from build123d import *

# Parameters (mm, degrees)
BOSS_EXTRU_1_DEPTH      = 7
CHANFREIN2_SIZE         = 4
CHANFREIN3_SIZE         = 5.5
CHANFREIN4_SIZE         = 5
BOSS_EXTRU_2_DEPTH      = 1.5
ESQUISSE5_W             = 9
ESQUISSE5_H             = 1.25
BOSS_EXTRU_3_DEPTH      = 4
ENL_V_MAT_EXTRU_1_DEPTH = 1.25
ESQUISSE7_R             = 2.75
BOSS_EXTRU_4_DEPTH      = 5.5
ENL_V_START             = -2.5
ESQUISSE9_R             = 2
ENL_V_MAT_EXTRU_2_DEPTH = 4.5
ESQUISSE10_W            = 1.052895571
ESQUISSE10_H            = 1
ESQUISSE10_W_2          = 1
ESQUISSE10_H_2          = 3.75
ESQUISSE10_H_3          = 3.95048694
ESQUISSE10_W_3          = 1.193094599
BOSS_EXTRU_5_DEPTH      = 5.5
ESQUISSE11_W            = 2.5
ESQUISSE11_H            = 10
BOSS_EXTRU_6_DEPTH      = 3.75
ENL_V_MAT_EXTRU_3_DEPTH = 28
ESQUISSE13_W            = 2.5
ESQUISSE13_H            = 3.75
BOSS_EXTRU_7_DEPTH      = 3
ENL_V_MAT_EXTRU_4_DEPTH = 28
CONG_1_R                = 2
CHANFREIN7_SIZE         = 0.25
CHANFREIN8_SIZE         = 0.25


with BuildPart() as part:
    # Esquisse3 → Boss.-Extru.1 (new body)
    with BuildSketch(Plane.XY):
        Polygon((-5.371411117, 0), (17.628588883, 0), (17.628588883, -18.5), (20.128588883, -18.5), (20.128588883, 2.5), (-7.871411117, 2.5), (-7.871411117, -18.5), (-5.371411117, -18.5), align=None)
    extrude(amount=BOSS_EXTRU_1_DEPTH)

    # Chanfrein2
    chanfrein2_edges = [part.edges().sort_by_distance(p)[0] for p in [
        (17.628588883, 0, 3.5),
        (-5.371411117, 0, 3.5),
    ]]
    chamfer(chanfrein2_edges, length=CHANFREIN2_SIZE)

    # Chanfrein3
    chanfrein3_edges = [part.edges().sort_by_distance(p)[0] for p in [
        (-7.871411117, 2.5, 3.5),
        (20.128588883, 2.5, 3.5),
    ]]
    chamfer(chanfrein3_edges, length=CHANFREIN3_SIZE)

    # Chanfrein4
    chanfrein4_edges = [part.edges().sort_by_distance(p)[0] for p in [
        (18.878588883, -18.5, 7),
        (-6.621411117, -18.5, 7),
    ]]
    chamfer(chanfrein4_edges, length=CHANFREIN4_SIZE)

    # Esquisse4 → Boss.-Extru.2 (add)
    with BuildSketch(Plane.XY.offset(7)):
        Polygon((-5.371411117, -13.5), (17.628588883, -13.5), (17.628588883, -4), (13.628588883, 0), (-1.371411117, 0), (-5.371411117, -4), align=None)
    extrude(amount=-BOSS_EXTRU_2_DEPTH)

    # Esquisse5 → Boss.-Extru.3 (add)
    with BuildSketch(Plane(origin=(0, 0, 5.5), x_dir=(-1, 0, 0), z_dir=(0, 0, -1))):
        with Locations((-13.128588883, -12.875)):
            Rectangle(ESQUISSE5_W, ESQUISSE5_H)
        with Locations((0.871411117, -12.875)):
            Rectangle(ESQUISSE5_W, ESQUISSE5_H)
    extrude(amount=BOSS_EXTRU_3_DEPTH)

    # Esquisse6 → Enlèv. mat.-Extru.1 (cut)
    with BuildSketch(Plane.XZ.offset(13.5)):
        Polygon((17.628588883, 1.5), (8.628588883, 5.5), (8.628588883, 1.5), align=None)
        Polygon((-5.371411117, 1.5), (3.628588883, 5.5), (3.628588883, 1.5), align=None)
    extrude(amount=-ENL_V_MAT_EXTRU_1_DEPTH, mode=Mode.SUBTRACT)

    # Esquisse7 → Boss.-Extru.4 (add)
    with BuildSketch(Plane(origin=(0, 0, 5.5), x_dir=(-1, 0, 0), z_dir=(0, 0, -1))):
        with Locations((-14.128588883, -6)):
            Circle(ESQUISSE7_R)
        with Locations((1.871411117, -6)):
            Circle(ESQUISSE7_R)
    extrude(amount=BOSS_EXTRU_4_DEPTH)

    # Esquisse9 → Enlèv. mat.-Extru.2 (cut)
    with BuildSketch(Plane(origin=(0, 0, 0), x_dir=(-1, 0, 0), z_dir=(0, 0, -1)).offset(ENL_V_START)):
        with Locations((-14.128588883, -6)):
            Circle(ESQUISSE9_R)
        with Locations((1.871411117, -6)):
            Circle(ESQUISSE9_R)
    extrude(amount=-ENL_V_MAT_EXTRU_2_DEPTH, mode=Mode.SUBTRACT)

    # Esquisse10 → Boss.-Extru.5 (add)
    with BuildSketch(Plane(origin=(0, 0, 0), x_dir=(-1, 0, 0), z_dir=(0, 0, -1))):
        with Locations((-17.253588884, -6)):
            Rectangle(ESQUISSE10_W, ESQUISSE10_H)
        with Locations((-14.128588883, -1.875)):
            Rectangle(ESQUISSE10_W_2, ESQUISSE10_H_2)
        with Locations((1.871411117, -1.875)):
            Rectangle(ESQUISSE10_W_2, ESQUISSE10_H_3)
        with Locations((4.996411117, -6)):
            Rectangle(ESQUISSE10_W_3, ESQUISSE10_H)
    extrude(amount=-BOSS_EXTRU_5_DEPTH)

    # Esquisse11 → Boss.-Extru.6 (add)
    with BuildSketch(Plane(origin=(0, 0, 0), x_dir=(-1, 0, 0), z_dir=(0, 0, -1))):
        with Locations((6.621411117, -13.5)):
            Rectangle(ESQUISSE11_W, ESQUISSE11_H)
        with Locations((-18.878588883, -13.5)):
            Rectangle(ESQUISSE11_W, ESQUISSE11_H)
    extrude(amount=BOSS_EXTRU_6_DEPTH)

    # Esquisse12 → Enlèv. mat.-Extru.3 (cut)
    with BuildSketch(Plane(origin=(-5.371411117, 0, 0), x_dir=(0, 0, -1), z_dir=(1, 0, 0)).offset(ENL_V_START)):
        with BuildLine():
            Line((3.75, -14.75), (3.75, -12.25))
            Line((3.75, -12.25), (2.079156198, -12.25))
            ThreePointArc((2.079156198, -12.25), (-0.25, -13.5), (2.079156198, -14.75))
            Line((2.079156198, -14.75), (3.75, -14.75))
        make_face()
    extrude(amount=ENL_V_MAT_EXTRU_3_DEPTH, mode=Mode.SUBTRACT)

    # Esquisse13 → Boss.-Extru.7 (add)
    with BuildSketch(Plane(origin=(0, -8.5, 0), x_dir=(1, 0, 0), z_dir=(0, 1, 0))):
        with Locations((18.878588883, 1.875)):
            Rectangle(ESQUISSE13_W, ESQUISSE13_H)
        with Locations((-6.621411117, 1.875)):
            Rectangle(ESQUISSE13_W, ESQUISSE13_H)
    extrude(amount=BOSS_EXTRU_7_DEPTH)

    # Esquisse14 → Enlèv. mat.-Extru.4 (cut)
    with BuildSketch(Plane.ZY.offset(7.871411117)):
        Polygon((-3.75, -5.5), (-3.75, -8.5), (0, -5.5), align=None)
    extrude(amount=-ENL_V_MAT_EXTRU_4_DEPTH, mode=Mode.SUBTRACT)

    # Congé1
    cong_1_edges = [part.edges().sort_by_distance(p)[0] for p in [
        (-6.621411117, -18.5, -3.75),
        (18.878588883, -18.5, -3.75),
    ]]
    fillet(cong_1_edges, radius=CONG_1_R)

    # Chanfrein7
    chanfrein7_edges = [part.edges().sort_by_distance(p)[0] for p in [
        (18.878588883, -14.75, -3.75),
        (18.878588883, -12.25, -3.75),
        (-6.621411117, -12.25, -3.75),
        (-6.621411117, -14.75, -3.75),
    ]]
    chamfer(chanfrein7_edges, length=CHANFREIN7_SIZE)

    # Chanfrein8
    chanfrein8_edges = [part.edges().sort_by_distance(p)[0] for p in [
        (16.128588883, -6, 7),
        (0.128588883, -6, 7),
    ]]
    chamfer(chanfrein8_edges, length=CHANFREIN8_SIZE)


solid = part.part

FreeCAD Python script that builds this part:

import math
import FreeCAD as App
import Part
import Sketcher
from FreeCAD import Vector
Q = App.Units.Quantity


def edges_at(feature, points):
    """Names of the edges that pass closest to the given points."""
    edges = feature.Shape.Edges
    near = lambda p: min(range(len(edges)), key=lambda i: edges[i].distToShape(Part.Vertex(*p))[0])
    return sorted({f"Edge{near(p) + 1}" for p in points})

doc = App.newDocument("Part")
params = doc.addObject("Spreadsheet::Sheet", "Params")
for row, (alias, value) in enumerate([
    ("sketch1_width", "23 mm"),
    ("sketch1_width2", "28 mm"),
    ("sketch1_height", "21 mm"),
    ("sketch1_height2", "18.5 mm"),
    ("pad1_length", "7 mm"),
    ("chamfer_size", "4 mm"),
    ("chamfer2_size", "5.5 mm"),
    ("chamfer3_size", "5 mm"),
    ("sketch2_width", "23 mm"),
    ("sketch2_width2", "15 mm"),
    ("sketch2_height", "9.5 mm"),
    ("pad2_length", "1.5 mm"),
    ("sketch3_width", "9 mm"),
    ("sketch3_height", "1.25 mm"),
    ("pad3_length", "4 mm"),
    ("sketch4_width", "9 mm"),
    ("sketch4_height", "4 mm"),
    ("pocket1_length", "1.25 mm"),
    ("sketch5_diameter", "5.5 mm"),
    ("pad4_length", "5.5 mm"),
    ("sketch6_diameter", "4 mm"),
    ("pocket2_length", "4.5 mm"),
    ("sketch7_width", "1 mm"),
    ("sketch7_height", "3.75 mm"),
    ("pad5_length", "5.5 mm"),
    ("sketch8_height", "10 mm"),
    ("sketch8_width", "2.5 mm"),
    ("pad6_length", "3.75 mm"),
    ("sketch9_radius", "1.5 mm"),
    ("sketch9_width", "2.5 mm"),
    ("pocket3_length", "28 mm"),
    ("sketch10_width", "2.5 mm"),
    ("sketch10_height", "3.75 mm"),
    ("pad7_length", "3 mm"),
    ("sketch11_width", "3 mm"),
    ("sketch11_height", "3.75 mm"),
    ("pocket4_length", "28 mm"),
    ("fillet_radius", "2 mm"),
    ("chamfer4_size", "0.25 mm"),
    ("chamfer5_size", "0.25 mm"),
], start=1):
    params.set(f"A{row}", alias)
    params.set(f"B{row}", "=" + value)
    params.setAlias(f"B{row}", alias)

body = doc.addObject("PartDesign::Body", "Body")

sketch1 = body.newObject("Sketcher::SketchObject", "Sketch")
sketch1.AttachmentSupport = (doc.getObject("XY_Plane"), [""])
sketch1.MapMode = "FlatFace"
sketch1.addGeometry([
    Part.LineSegment(Vector(-5.4, 0, 0), Vector(17.6, 0, 0)),
    Part.LineSegment(Vector(17.6, 0, 0), Vector(17.6, -18.5, 0)),
    Part.LineSegment(Vector(17.6, -18.5, 0), Vector(20.1, -18.5, 0)),
    Part.LineSegment(Vector(20.1, -18.5, 0), Vector(20.1, 2.5, 0)),
    Part.LineSegment(Vector(20.1, 2.5, 0), Vector(-7.9, 2.5, 0)),
    Part.LineSegment(Vector(-7.9, 2.5, 0), Vector(-7.9, -18.5, 0)),
    Part.LineSegment(Vector(-7.9, -18.5, 0), Vector(-5.4, -18.5, 0)),
    Part.LineSegment(Vector(-5.4, -18.5, 0), Vector(-5.4, 0, 0)),
], False)
sketch1.addConstraint([
    Sketcher.Constraint("Coincident", 0, 2, 1, 1),
    Sketcher.Constraint("Coincident", 1, 2, 2, 1),
    Sketcher.Constraint("Coincident", 2, 2, 3, 1),
    Sketcher.Constraint("Coincident", 3, 2, 4, 1),
    Sketcher.Constraint("Coincident", 4, 2, 5, 1),
    Sketcher.Constraint("Coincident", 5, 2, 6, 1),
    Sketcher.Constraint("Coincident", 6, 2, 7, 1),
    Sketcher.Constraint("Coincident", 7, 2, 0, 1),
    Sketcher.Constraint("Horizontal", 0),
    Sketcher.Constraint("Vertical", 1),
    Sketcher.Constraint("Horizontal", 2),
    Sketcher.Constraint("Vertical", 3),
    Sketcher.Constraint("Horizontal", 4),
    Sketcher.Constraint("Vertical", 5),
    Sketcher.Constraint("Horizontal", 6),
    Sketcher.Constraint("Vertical", 7),
    Sketcher.Constraint("PointOnObject", 0, 2, -1),
    Sketcher.Constraint("Horizontal", 2, 2, 5, 2),
    Sketcher.Constraint("Equal", 2, 6),
    Sketcher.Constraint("DistanceX", 0, 1, 0, 2, Q("23 mm")),
    Sketcher.Constraint("DistanceX", 4, 2, 4, 1, Q("28 mm")),
    Sketcher.Constraint("DistanceY", 3, 1, 3, 2, Q("21 mm")),
    Sketcher.Constraint("DistanceY", 1, 2, 1, 1, Q("18.5 mm")),
    Sketcher.Constraint("DistanceX", -1, 1, 0, 2, Q("17.628589 mm")),
])
sketch1.setExpression("Constraints[19]", "Params.sketch1_width")
sketch1.setExpression("Constraints[20]", "Params.sketch1_width2")
sketch1.setExpression("Constraints[21]", "Params.sketch1_height")
sketch1.setExpression("Constraints[22]", "Params.sketch1_height2")
pad1 = body.newObject("PartDesign::Pad", "Pad")
pad1.Profile = sketch1
pad1.setExpression("Length", "Params.pad1_length")
doc.recompute()

chamfer = body.newObject("PartDesign::Chamfer", "Chamfer")
chamfer.Base = (pad1, edges_at(pad1, [(17.629, 0, 3.5), (-5.371, 0, 3.5)]))
chamfer.setExpression("Size", "Params.chamfer_size")
doc.recompute()

chamfer2 = body.newObject("PartDesign::Chamfer", "Chamfer001")
chamfer2.Base = (chamfer, edges_at(chamfer, [(-7.871, 2.5, 3.5), (20.129, 2.5, 3.5)]))
chamfer2.setExpression("Size", "Params.chamfer2_size")
doc.recompute()

chamfer3 = body.newObject("PartDesign::Chamfer", "Chamfer002")
chamfer3.Base = (chamfer2, edges_at(chamfer2, [(18.879, -18.5, 7), (-6.621, -18.5, 7)]))
chamfer3.setExpression("Size", "Params.chamfer3_size")

sketch2 = body.newObject("Sketcher::SketchObject", "Sketch001")
sketch2.AttachmentSupport = (doc.getObject("XY_Plane"), [""])
sketch2.MapMode = "FlatFace"
sketch2.AttachmentOffset = App.Placement(Vector(0, 0, 7), App.Rotation())
sketch2.addGeometry([
    Part.LineSegment(Vector(-5, -14, 0), Vector(18, -14, 0)),
    Part.LineSegment(Vector(18, -14, 0), Vector(18, -4, 0)),
    Part.LineSegment(Vector(18, -4, 0), Vector(14, 0, 0)),
    Part.LineSegment(Vector(14, 0, 0), Vector(-1, 0, 0)),
    Part.LineSegment(Vector(-1, 0, 0), Vector(-5, -4, 0)),
    Part.LineSegment(Vector(-5, -4, 0), Vector(-5, -14, 0)),
], False)
sketch2.addConstraint([
    Sketcher.Constraint("Coincident", 0, 2, 1, 1),
    Sketcher.Constraint("Coincident", 1, 2, 2, 1),
    Sketcher.Constraint("Coincident", 2, 2, 3, 1),
    Sketcher.Constraint("Coincident", 3, 2, 4, 1),
    Sketcher.Constraint("Coincident", 4, 2, 5, 1),
    Sketcher.Constraint("Coincident", 5, 2, 0, 1),
    Sketcher.Constraint("Horizontal", 0),
    Sketcher.Constraint("Vertical", 1),
    Sketcher.Constraint("Horizontal", 3),
    Sketcher.Constraint("Vertical", 5),
    Sketcher.Constraint("PointOnObject", 2, 2, -1),
    Sketcher.Constraint("Perpendicular", 2, 4),
    Sketcher.Constraint("Horizontal", 1, 2, 4, 2),
    Sketcher.Constraint("Equal", 2, 4),
    Sketcher.Constraint("DistanceX", 0, 1, 0, 2, Q("23 mm")),
    Sketcher.Constraint("DistanceX", 3, 2, 3, 1, Q("15 mm")),
    Sketcher.Constraint("DistanceY", 1, 1, 1, 2, Q("9.5 mm")),
    Sketcher.Constraint("DistanceX", -1, 1, 0, 2, Q("17.628589 mm")),
])
sketch2.setExpression("Constraints[14]", "Params.sketch2_width")
sketch2.setExpression("Constraints[15]", "Params.sketch2_width2")
sketch2.setExpression("Constraints[16]", "Params.sketch2_height")
pad2 = body.newObject("PartDesign::Pad", "Pad001")
pad2.Profile = sketch2
pad2.setExpression("Length", "Params.pad2_length")
pad2.Reversed = True

sketch3 = body.newObject("Sketcher::SketchObject", "Sketch002")
sketch3.AttachmentSupport = (doc.getObject("XY_Plane"), [""])
sketch3.MapMode = "FlatFace"
sketch3.AttachmentOffset = App.Placement(Vector(0, 0, 5.5), App.Rotation())
sketch3.addGeometry([
    Part.LineSegment(Vector(17.6, -12.2, 0), Vector(17.6, -13.5, 0)),
    Part.LineSegment(Vector(17.6, -13.5, 0), Vector(8.6, -13.5, 0)),
    Part.LineSegment(Vector(8.6, -13.5, 0), Vector(8.6, -12.2, 0)),
    Part.LineSegment(Vector(8.6, -12.2, 0), Vector(17.6, -12.2, 0)),
    Part.LineSegment(Vector(3.6, -12.2, 0), Vector(3.6, -13.5, 0)),
    Part.LineSegment(Vector(3.6, -13.5, 0), Vector(-5.4, -13.5, 0)),
    Part.LineSegment(Vector(-5.4, -13.5, 0), Vector(-5.4, -12.2, 0)),
    Part.LineSegment(Vector(-5.4, -12.2, 0), Vector(3.6, -12.2, 0)),
], False)
sketch3.addConstraint([
    Sketcher.Constraint("Coincident", 0, 2, 1, 1),
    Sketcher.Constraint("Coincident", 1, 2, 2, 1),
    Sketcher.Constraint("Coincident", 2, 2, 3, 1),
    Sketcher.Constraint("Coincident", 3, 2, 0, 1),
    Sketcher.Constraint("Coincident", 4, 2, 5, 1),
    Sketcher.Constraint("Coincident", 5, 2, 6, 1),
    Sketcher.Constraint("Coincident", 6, 2, 7, 1),
    Sketcher.Constraint("Coincident", 7, 2, 4, 1),
    Sketcher.Constraint("Vertical", 0),
    Sketcher.Constraint("Horizontal", 1),
    Sketcher.Constraint("Vertical", 2),
    Sketcher.Constraint("Horizontal", 3),
    Sketcher.Constraint("Vertical", 4),
    Sketcher.Constraint("Horizontal", 5),
    Sketcher.Constraint("Vertical", 6),
    Sketcher.Constraint("Horizontal", 7),
    Sketcher.Constraint("Horizontal", 1, 2, 4, 2),
    Sketcher.Constraint("Horizontal", 3, 2, 6, 2),
    Sketcher.Constraint("Equal", 3, 5),
    Sketcher.Constraint("DistanceX", 1, 2, 1, 1, Q("9 mm")),
    Sketcher.Constraint("DistanceX", 4, 2, 1, 2, Q("5 mm")),
    Sketcher.Constraint("DistanceY", 0, 2, 0, 1, Q("1.25 mm")),
    Sketcher.Constraint("DistanceY", 0, 2, -1, 1, Q("13.5 mm")),
    Sketcher.Constraint("DistanceX", -1, 1, 0, 2, Q("17.628589 mm")),
])
sketch3.setExpression("Constraints[19]", "Params.sketch3_width")
sketch3.setExpression("Constraints[21]", "Params.sketch3_height")
pad3 = body.newObject("PartDesign::Pad", "Pad002")
pad3.Profile = sketch3
pad3.setExpression("Length", "Params.pad3_length")
pad3.Reversed = True

sketch4 = body.newObject("Sketcher::SketchObject", "Sketch003")
sketch4.AttachmentSupport = (doc.getObject("XZ_Plane"), [""])
sketch4.MapMode = "FlatFace"
sketch4.AttachmentOffset = App.Placement(Vector(0, 0, 13.5), App.Rotation())
sketch4.addGeometry([
    Part.LineSegment(Vector(17.6, 1.5, 0), Vector(8.6, 5.5, 0)),
    Part.LineSegment(Vector(8.6, 5.5, 0), Vector(8.6, 1.5, 0)),
    Part.LineSegment(Vector(8.6, 1.5, 0), Vector(17.6, 1.5, 0)),
    Part.LineSegment(Vector(3.6, 5.5, 0), Vector(-5.4, 1.5, 0)),
    Part.LineSegment(Vector(-5.4, 1.5, 0), Vector(3.6, 1.5, 0)),
    Part.LineSegment(Vector(3.6, 1.5, 0), Vector(3.6, 5.5, 0)),
], False)
sketch4.addConstraint([
    Sketcher.Constraint("Coincident", 0, 2, 1, 1),
    Sketcher.Constraint("Coincident", 1, 2, 2, 1),
    Sketcher.Constraint("Coincident", 2, 2, 0, 1),
    Sketcher.Constraint("Coincident", 3, 2, 4, 1),
    Sketcher.Constraint("Coincident", 4, 2, 5, 1),
    Sketcher.Constraint("Coincident", 5, 2, 3, 1),
    Sketcher.Constraint("Vertical", 1),
    Sketcher.Constraint("Horizontal", 2),
    Sketcher.Constraint("Horizontal", 4),
    Sketcher.Constraint("Vertical", 5),
    Sketcher.Constraint("Horizontal", 2, 2, 3, 2),
    Sketcher.Constraint("Horizontal", 0, 2, 5, 2),
    Sketcher.Constraint("Equal", 2, 4),
    Sketcher.Constraint("DistanceX", 2, 1, 2, 2, Q("9 mm")),
    Sketcher.Constraint("DistanceY", 1, 2, 1, 1, Q("4 mm")),
    Sketcher.Constraint("DistanceX", 3, 2, 1, 2, Q("14 mm")),
    Sketcher.Constraint("DistanceY", -1, 1, 0, 2, Q("5.5 mm")),
    Sketcher.Constraint("DistanceX", -1, 1, 0, 2, Q("8.628589 mm")),
])
sketch4.setExpression("Constraints[13]", "Params.sketch4_width")
sketch4.setExpression("Constraints[14]", "Params.sketch4_height")
pocket1 = body.newObject("PartDesign::Pocket", "Pocket")
pocket1.Profile = sketch4
pocket1.setExpression("Length", "Params.pocket1_length")

sketch5 = body.newObject("Sketcher::SketchObject", "Sketch004")
sketch5.AttachmentSupport = (doc.getObject("XY_Plane"), [""])
sketch5.MapMode = "FlatFace"
sketch5.AttachmentOffset = App.Placement(Vector(0, 0, 5.5), App.Rotation())
sketch5.addGeometry([
    Part.Circle(Vector(14.1, -6, 0), Vector(0, 0, 1), 2.8),
    Part.Circle(Vector(-1.9, -6, 0), Vector(0, 0, 1), 2.8),
], False)
sketch5.addConstraint([
    Sketcher.Constraint("Equal", 0, 1),
    Sketcher.Constraint("Horizontal", 0, 3, 1, 3),
    Sketcher.Constraint("Diameter", 0, Q("5.5 mm")),
    Sketcher.Constraint("DistanceY", 0, 3, -1, 1, Q("6 mm")),
    Sketcher.Constraint("DistanceX", 1, 3, 0, 3, Q("16 mm")),
    Sketcher.Constraint("DistanceX", -1, 1, 0, 3, Q("14.128589 mm")),
])
sketch5.setExpression("Constraints[2]", "Params.sketch5_diameter")
pad4 = body.newObject("PartDesign::Pad", "Pad003")
pad4.Profile = sketch5
pad4.setExpression("Length", "Params.pad4_length")
pad4.Reversed = True

sketch6 = body.newObject("Sketcher::SketchObject", "Sketch005")
sketch6.AttachmentSupport = (doc.getObject("XY_Plane"), [""])
sketch6.MapMode = "FlatFace"
sketch6.AttachmentOffset = App.Placement(Vector(0, 0, 2.5), App.Rotation())
sketch6.addGeometry([
    Part.Circle(Vector(14.1, -6, 0), Vector(0, 0, 1), 2),
    Part.Circle(Vector(-1.9, -6, 0), Vector(0, 0, 1), 2),
], False)
sketch6.addConstraint([
    Sketcher.Constraint("Equal", 0, 1),
    Sketcher.Constraint("Horizontal", 0, 3, 1, 3),
    Sketcher.Constraint("Diameter", 0, Q("4 mm")),
    Sketcher.Constraint("DistanceY", 0, 3, -1, 1, Q("6 mm")),
    Sketcher.Constraint("DistanceX", 1, 3, 0, 3, Q("16 mm")),
    Sketcher.Constraint("DistanceX", -1, 1, 0, 3, Q("14.128589 mm")),
])
sketch6.setExpression("Constraints[2]", "Params.sketch6_diameter")
pocket2 = body.newObject("PartDesign::Pocket", "Pocket001")
pocket2.Profile = sketch6
pocket2.setExpression("Length", "Params.pocket2_length")
pocket2.Reversed = True

sketch7 = body.newObject("Sketcher::SketchObject", "Sketch006")
sketch7.AttachmentSupport = (doc.getObject("XY_Plane"), [""])
sketch7.MapMode = "FlatFace"
sketch7.addGeometry([
    Part.LineSegment(Vector(17.8, -5.5, 0), Vector(17.8, -6.5, 0)),
    Part.LineSegment(Vector(17.8, -6.5, 0), Vector(16.7, -6.5, 0)),
    Part.LineSegment(Vector(16.7, -6.5, 0), Vector(16.7, -5.5, 0)),
    Part.LineSegment(Vector(16.7, -5.5, 0), Vector(17.8, -5.5, 0)),
    Part.LineSegment(Vector(14.6, 0, 0), Vector(14.6, -3.8, 0)),
    Part.LineSegment(Vector(14.6, -3.8, 0), Vector(13.6, -3.8, 0)),
    Part.LineSegment(Vector(13.6, -3.8, 0), Vector(13.6, 0, 0)),
    Part.LineSegment(Vector(13.6, 0, 0), Vector(14.6, 0, 0)),
    Part.LineSegment(Vector(-1.4, 0.1, 0), Vector(-1.4, -3.9, 0)),
    Part.LineSegment(Vector(-1.4, -3.9, 0), Vector(-2.4, -3.9, 0)),
    Part.LineSegment(Vector(-2.4, -3.9, 0), Vector(-2.4, 0.1, 0)),
    Part.LineSegment(Vector(-2.4, 0.1, 0), Vector(-1.4, 0.1, 0)),
    Part.LineSegment(Vector(-4.4, -5.5, 0), Vector(-4.4, -6.5, 0)),
    Part.LineSegment(Vector(-4.4, -6.5, 0), Vector(-5.6, -6.5, 0)),
    Part.LineSegment(Vector(-5.6, -6.5, 0), Vector(-5.6, -5.5, 0)),
    Part.LineSegment(Vector(-5.6, -5.5, 0), Vector(-4.4, -5.5, 0)),
], False)
sketch7.addConstraint([
    Sketcher.Constraint("Coincident", 0, 2, 1, 1),
    Sketcher.Constraint("Coincident", 1, 2, 2, 1),
    Sketcher.Constraint("Coincident", 2, 2, 3, 1),
    Sketcher.Constraint("Coincident", 3, 2, 0, 1),
    Sketcher.Constraint("Coincident", 4, 2, 5, 1),
    Sketcher.Constraint("Coincident", 5, 2, 6, 1),
    Sketcher.Constraint("Coincident", 6, 2, 7, 1),
    Sketcher.Constraint("Coincident", 7, 2, 4, 1),
    Sketcher.Constraint("Coincident", 8, 2, 9, 1),
    Sketcher.Constraint("Coincident", 9, 2, 10, 1),
    Sketcher.Constraint("Coincident", 10, 2, 11, 1),
    Sketcher.Constraint("Coincident", 11, 2, 8, 1),
    Sketcher.Constraint("Coincident", 12, 2, 13, 1),
    Sketcher.Constraint("Coincident", 13, 2, 14, 1),
    Sketcher.Constraint("Coincident", 14, 2, 15, 1),
    Sketcher.Constraint("Coincident", 15, 2, 12, 1),
    Sketcher.Constraint("Vertical", 0),
    Sketcher.Constraint("Horizontal", 1),
    Sketcher.Constraint("Vertical", 2),
    Sketcher.Constraint("Horizontal", 3),
    Sketcher.Constraint("Vertical", 4),
    Sketcher.Constraint("Horizontal", 5),
    Sketcher.Constraint("Vertical", 6),
    Sketcher.Constraint("Horizontal", 7),
    Sketcher.Constraint("Vertical", 8),
    Sketcher.Constraint("Horizontal", 9),
    Sketcher.Constraint("Vertical", 10),
    Sketcher.Constraint("Horizontal", 11),
    Sketcher.Constraint("Vertical", 12),
    Sketcher.Constraint("Horizontal", 13),
    Sketcher.Constraint("Vertical", 14),
    Sketcher.Constraint("Horizontal", 15),
    Sketcher.Constraint("PointOnObject", 6, 2, -1),
    Sketcher.Constraint("Horizontal", 1, 2, 12, 2),
    Sketcher.Constraint("Horizontal", 3, 2, 14, 2),
    Sketcher.Constraint("Equal", 7, 9),
    Sketcher.Constraint("Equal", 11, 0),
    Sketcher.Constraint("DistanceX", 5, 2, 5, 1, Q("1 mm")),
    Sketcher.Constraint("DistanceX", 8, 2, 5, 2, Q("15 mm")),
    Sketcher.Constraint("DistanceY", 4, 2, 4, 1, Q("3.75 mm")),
    Sketcher.Constraint("DistanceY", 0, 2, -1, 1, Q("6.5 mm")),
    Sketcher.Constraint("DistanceX", 1, 2, 1, 1, Q("1.052896 mm")),
    Sketcher.Constraint("DistanceX", 13, 2, 13, 1, Q("1.193095 mm")),
    Sketcher.Constraint("DistanceY", 8, 2, 8, 1, Q("3.950487 mm")),
    Sketcher.Constraint("DistanceX", -1, 1, 1, 2, Q("16.727141 mm")),
    Sketcher.Constraint("DistanceX", -1, 1, 4, 2, Q("14.628589 mm")),
    Sketcher.Constraint("DistanceX", 13, 2, -1, 1, Q("5.592958 mm")),
    Sketcher.Constraint("DistanceY", 8, 2, -1, 1, Q("3.850243 mm")),
])
sketch7.setExpression("Constraints[37]", "Params.sketch7_width")
sketch7.setExpression("Constraints[39]", "Params.sketch7_height")
pad5 = body.newObject("PartDesign::Pad", "Pad004")
pad5.Profile = sketch7
pad5.setExpression("Length", "Params.pad5_length")

sketch8 = body.newObject("Sketcher::SketchObject", "Sketch007")
sketch8.AttachmentSupport = (doc.getObject("XY_Plane"), [""])
sketch8.MapMode = "FlatFace"
sketch8.addGeometry([
    Part.LineSegment(Vector(-5.4, -8.5, 0), Vector(-5.4, -18.5, 0)),
    Part.LineSegment(Vector(-5.4, -18.5, 0), Vector(-7.9, -18.5, 0)),
    Part.LineSegment(Vector(-7.9, -18.5, 0), Vector(-7.9, -8.5, 0)),
    Part.LineSegment(Vector(-7.9, -8.5, 0), Vector(-5.4, -8.5, 0)),
    Part.LineSegment(Vector(20.1, -8.5, 0), Vector(20.1, -18.5, 0)),
    Part.LineSegment(Vector(20.1, -18.5, 0), Vector(17.6, -18.5, 0)),
    Part.LineSegment(Vector(17.6, -18.5, 0), Vector(17.6, -8.5, 0)),
    Part.LineSegment(Vector(17.6, -8.5, 0), Vector(20.1, -8.5, 0)),
], False)
sketch8.addConstraint([
    Sketcher.Constraint("Coincident", 0, 2, 1, 1),
    Sketcher.Constraint("Coincident", 1, 2, 2, 1),
    Sketcher.Constraint("Coincident", 2, 2, 3, 1),
    Sketcher.Constraint("Coincident", 3, 2, 0, 1),
    Sketcher.Constraint("Coincident", 4, 2, 5, 1),
    Sketcher.Constraint("Coincident", 5, 2, 6, 1),
    Sketcher.Constraint("Coincident", 6, 2, 7, 1),
    Sketcher.Constraint("Coincident", 7, 2, 4, 1),
    Sketcher.Constraint("Vertical", 0),
    Sketcher.Constraint("Horizontal", 1),
    Sketcher.Constraint("Vertical", 2),
    Sketcher.Constraint("Horizontal", 3),
    Sketcher.Constraint("Vertical", 4),
    Sketcher.Constraint("Horizontal", 5),
    Sketcher.Constraint("Vertical", 6),
    Sketcher.Constraint("Horizontal", 7),
    Sketcher.Constraint("Horizontal", 1, 2, 4, 2),
    Sketcher.Constraint("Horizontal", 3, 2, 6, 2),
    Sketcher.Constraint("Equal", 3, 5),
    Sketcher.Constraint("DistanceY", 0, 2, 0, 1, Q("10 mm")),
    Sketcher.Constraint("DistanceX", 1, 2, 1, 1, Q("2.5 mm")),
    Sketcher.Constraint("DistanceX", 1, 2, 4, 2, Q("28 mm")),
    Sketcher.Constraint("DistanceY", 0, 2, -1, 1, Q("18.5 mm")),
    Sketcher.Constraint("DistanceX", 0, 2, -1, 1, Q("5.371411 mm")),
])
sketch8.setExpression("Constraints[19]", "Params.sketch8_height")
sketch8.setExpression("Constraints[20]", "Params.sketch8_width")
pad6 = body.newObject("PartDesign::Pad", "Pad005")
pad6.Profile = sketch8
pad6.setExpression("Length", "Params.pad6_length")
pad6.Reversed = True

sketch9 = body.newObject("Sketcher::SketchObject", "Sketch008")
sketch9.AttachmentSupport = (doc.getObject("YZ_Plane"), [""])
sketch9.MapMode = "FlatFace"
sketch9.AttachmentOffset = App.Placement(Vector(0, 0, -7.871411), App.Rotation())
sketch9.addGeometry([
    Part.LineSegment(Vector(-14.8, -3.8, 0), Vector(-12.2, -3.8, 0)),
    Part.LineSegment(Vector(-12.2, -3.8, 0), Vector(-12.2, -2.1, 0)),
    Part.ArcOfCircle(Part.Circle(Vector(-13.5, -1.2, 0), Vector(0, 0, 1), 1.5), math.radians(-34), math.radians(214)),
    Part.LineSegment(Vector(-14.8, -2.1, 0), Vector(-14.8, -3.8, 0)),
], False)
sketch9.addConstraint([
    Sketcher.Constraint("Coincident", 0, 2, 1, 1),
    Sketcher.Constraint("Coincident", 1, 2, 2, 1),
    Sketcher.Constraint("Coincident", 2, 2, 3, 1),
    Sketcher.Constraint("Coincident", 3, 2, 0, 1),
    Sketcher.Constraint("Horizontal", 0),
    Sketcher.Constraint("Vertical", 1),
    Sketcher.Constraint("Vertical", 3),
    Sketcher.Constraint("Horizontal", 1, 2, 2, 2),
    Sketcher.Constraint("Radius", 2, Q("1.5 mm")),
    Sketcher.Constraint("DistanceX", 0, 1, 0, 2, Q("2.5 mm")),
    Sketcher.Constraint("DistanceX", 2, 3, -1, 1, Q("13.5 mm")),
    Sketcher.Constraint("DistanceY", 0, 2, 2, 3, Q("2.5 mm")),
    Sketcher.Constraint("DistanceY", 2, 3, -1, 1, Q("1.25 mm")),
])
sketch9.setExpression("Constraints[8]", "Params.sketch9_radius")
sketch9.setExpression("Constraints[9]", "Params.sketch9_width")
pocket3 = body.newObject("PartDesign::Pocket", "Pocket002")
pocket3.Profile = sketch9
pocket3.setExpression("Length", "Params.pocket3_length")
pocket3.Reversed = True

sketch10 = body.newObject("Sketcher::SketchObject", "Sketch009")
sketch10.AttachmentSupport = (doc.getObject("XZ_Plane"), [""])
sketch10.MapMode = "FlatFace"
sketch10.AttachmentOffset = App.Placement(Vector(0, 0, 8.5), App.Rotation())
sketch10.addGeometry([
    Part.LineSegment(Vector(17.6, -3.8, 0), Vector(17.6, 0, 0)),
    Part.LineSegment(Vector(17.6, 0, 0), Vector(20.1, 0, 0)),
    Part.LineSegment(Vector(20.1, 0, 0), Vector(20.1, -3.8, 0)),
    Part.LineSegment(Vector(20.1, -3.8, 0), Vector(17.6, -3.8, 0)),
    Part.LineSegment(Vector(-7.9, -3.8, 0), Vector(-7.9, 0, 0)),
    Part.LineSegment(Vector(-7.9, 0, 0), Vector(-5.4, 0, 0)),
    Part.LineSegment(Vector(-5.4, 0, 0), Vector(-5.4, -3.8, 0)),
    Part.LineSegment(Vector(-5.4, -3.8, 0), Vector(-7.9, -3.8, 0)),
], False)
sketch10.addConstraint([
    Sketcher.Constraint("Coincident", 0, 2, 1, 1),
    Sketcher.Constraint("Coincident", 1, 2, 2, 1),
    Sketcher.Constraint("Coincident", 2, 2, 3, 1),
    Sketcher.Constraint("Coincident", 3, 2, 0, 1),
    Sketcher.Constraint("Coincident", 4, 2, 5, 1),
    Sketcher.Constraint("Coincident", 5, 2, 6, 1),
    Sketcher.Constraint("Coincident", 6, 2, 7, 1),
    Sketcher.Constraint("Coincident", 7, 2, 4, 1),
    Sketcher.Constraint("Vertical", 0),
    Sketcher.Constraint("Horizontal", 1),
    Sketcher.Constraint("Vertical", 2),
    Sketcher.Constraint("Horizontal", 3),
    Sketcher.Constraint("Vertical", 4),
    Sketcher.Constraint("Horizontal", 5),
    Sketcher.Constraint("Vertical", 6),
    Sketcher.Constraint("Horizontal", 7),
    Sketcher.Constraint("PointOnObject", 0, 2, -1),
    Sketcher.Constraint("PointOnObject", 4, 2, -1),
    Sketcher.Constraint("Horizontal", 3, 2, 6, 2),
    Sketcher.Constraint("Equal", 3, 5),
    Sketcher.Constraint("DistanceX", 1, 1, 1, 2, Q("2.5 mm")),
    Sketcher.Constraint("DistanceX", 4, 2, 1, 2, Q("28 mm")),
    Sketcher.Constraint("DistanceY", 0, 1, 0, 2, Q("3.75 mm")),
    Sketcher.Constraint("DistanceX", -1, 1, 0, 2, Q("17.628589 mm")),
])
sketch10.setExpression("Constraints[20]", "Params.sketch10_width")
sketch10.setExpression("Constraints[22]", "Params.sketch10_height")
pad7 = body.newObject("PartDesign::Pad", "Pad006")
pad7.Profile = sketch10
pad7.setExpression("Length", "Params.pad7_length")
pad7.Reversed = True

sketch11 = body.newObject("Sketcher::SketchObject", "Sketch010")
sketch11.AttachmentSupport = (doc.getObject("YZ_Plane"), [""])
sketch11.MapMode = "FlatFace"
sketch11.AttachmentOffset = App.Placement(Vector(0, 0, -7.871411), App.Rotation())
sketch11.addGeometry([
    Part.LineSegment(Vector(-5.5, -3.8, 0), Vector(-8.5, -3.8, 0)),
    Part.LineSegment(Vector(-8.5, -3.8, 0), Vector(-5.5, 0, 0)),
    Part.LineSegment(Vector(-5.5, 0, 0), Vector(-5.5, -3.8, 0)),
], False)
sketch11.addConstraint([
    Sketcher.Constraint("Coincident", 0, 2, 1, 1),
    Sketcher.Constraint("Coincident", 1, 2, 2, 1),
    Sketcher.Constraint("Coincident", 2, 2, 0, 1),
    Sketcher.Constraint("Horizontal", 0),
    Sketcher.Constraint("Vertical", 2),
    Sketcher.Constraint("PointOnObject", 1, 2, -1),
    Sketcher.Constraint("DistanceX", 0, 2, 0, 1, Q("3 mm")),
    Sketcher.Constraint("DistanceY", 2, 2, 2, 1, Q("3.75 mm")),
    Sketcher.Constraint("DistanceX", 0, 2, -1, 1, Q("8.5 mm")),
])
sketch11.setExpression("Constraints[6]", "Params.sketch11_width")
sketch11.setExpression("Constraints[7]", "Params.sketch11_height")
pocket4 = body.newObject("PartDesign::Pocket", "Pocket003")
pocket4.Profile = sketch11
pocket4.setExpression("Length", "Params.pocket4_length")
pocket4.Reversed = True
doc.recompute()

fillet = body.newObject("PartDesign::Fillet", "Fillet")
fillet.Base = (pocket4, edges_at(pocket4, [(-6.621, -18.5, -3.75), (18.879, -18.5, -3.75)]))
fillet.setExpression("Radius", "Params.fillet_radius")
doc.recompute()

chamfer4 = body.newObject("PartDesign::Chamfer", "Chamfer003")
chamfer4.Base = (fillet, edges_at(fillet, [
    (18.879, -14.75, -3.75),
    (18.879, -12.25, -3.75),
    (-6.621, -12.25, -3.75),
    (-6.621, -14.75, -3.75),
]))
chamfer4.setExpression("Size", "Params.chamfer4_size")
doc.recompute()

chamfer5 = body.newObject("PartDesign::Chamfer", "Chamfer004")
chamfer5.Base = (chamfer4, edges_at(chamfer4, [(16.129, -6, 7), (0.129, -6, 7)]))
chamfer5.setExpression("Size", "Params.chamfer5_size")

doc.recompute()
